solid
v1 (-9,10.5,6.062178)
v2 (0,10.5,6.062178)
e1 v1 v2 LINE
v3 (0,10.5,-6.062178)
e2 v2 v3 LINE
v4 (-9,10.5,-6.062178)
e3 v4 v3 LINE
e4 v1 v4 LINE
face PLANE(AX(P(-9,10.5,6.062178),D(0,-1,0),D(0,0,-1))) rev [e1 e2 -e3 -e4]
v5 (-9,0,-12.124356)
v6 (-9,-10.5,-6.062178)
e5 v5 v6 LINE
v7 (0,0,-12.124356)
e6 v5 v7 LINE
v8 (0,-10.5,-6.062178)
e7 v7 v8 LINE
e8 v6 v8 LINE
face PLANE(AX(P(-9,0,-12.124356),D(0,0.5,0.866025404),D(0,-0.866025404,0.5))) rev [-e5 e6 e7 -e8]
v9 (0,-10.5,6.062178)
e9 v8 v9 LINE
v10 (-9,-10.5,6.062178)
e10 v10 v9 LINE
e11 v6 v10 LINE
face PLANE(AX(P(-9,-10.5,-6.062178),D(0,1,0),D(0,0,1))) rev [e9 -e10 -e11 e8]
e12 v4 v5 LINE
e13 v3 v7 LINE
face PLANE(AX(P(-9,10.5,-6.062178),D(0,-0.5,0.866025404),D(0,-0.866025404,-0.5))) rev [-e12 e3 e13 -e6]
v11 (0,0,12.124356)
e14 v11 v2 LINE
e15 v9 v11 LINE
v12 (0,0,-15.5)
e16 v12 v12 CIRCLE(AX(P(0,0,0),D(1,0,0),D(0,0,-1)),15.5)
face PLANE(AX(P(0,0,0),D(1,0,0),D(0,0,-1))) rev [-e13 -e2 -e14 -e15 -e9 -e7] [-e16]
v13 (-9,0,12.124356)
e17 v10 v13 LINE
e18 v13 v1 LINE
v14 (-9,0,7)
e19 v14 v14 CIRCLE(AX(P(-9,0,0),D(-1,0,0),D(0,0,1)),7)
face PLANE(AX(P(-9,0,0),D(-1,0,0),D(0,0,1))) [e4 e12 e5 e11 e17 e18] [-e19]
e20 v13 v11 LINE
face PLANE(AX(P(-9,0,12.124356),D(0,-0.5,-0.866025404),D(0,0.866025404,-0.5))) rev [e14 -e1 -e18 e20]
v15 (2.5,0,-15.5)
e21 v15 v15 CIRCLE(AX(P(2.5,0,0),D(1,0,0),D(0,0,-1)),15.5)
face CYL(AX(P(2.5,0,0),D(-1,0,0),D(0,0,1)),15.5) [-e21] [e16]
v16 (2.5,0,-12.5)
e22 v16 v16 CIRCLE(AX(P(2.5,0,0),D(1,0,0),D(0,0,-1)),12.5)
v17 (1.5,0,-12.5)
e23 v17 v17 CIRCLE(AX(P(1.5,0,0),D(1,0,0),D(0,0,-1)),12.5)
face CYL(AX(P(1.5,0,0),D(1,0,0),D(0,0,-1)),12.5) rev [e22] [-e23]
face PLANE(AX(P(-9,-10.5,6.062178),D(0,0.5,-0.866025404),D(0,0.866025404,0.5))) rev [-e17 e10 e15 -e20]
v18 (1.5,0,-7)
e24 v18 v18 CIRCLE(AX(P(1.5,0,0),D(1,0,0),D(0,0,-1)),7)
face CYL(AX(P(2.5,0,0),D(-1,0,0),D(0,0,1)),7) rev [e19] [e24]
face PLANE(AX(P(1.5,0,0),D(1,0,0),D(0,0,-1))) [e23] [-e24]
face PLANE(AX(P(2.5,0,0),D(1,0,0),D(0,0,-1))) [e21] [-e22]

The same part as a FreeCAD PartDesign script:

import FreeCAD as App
import Part
import Sketcher

V = App.Vector
Q = App.Units.Quantity

doc = App.newDocument("Part")
body = doc.addObject("PartDesign::Body", "Body")

# Sketch on YZ plane
sketch1 = body.newObject("Sketcher::SketchObject", "Sketch")
sketch1.AttachmentSupport = (doc.getObject("YZ_Plane"), [""])
sketch1.MapMode = "FlatFace"
sketch1.addGeometry(Part.Circle(V(0, 0, 0), V(0, 0, 1), 16), False)
sketch1.addConstraint(Sketcher.Constraint("Coincident", 0, 3, -1, 1))
sketch1.addConstraint(Sketcher.Constraint("Diameter", 0, Q("31 mm")))
pad1 = body.newObject("PartDesign::Pad", "Pad")
pad1.Profile = sketch1
pad1.Length = 2.5

# Sketch on YZ plane
sketch2 = body.newObject("Sketcher::SketchObject", "Sketch001")
sketch2.AttachmentSupport = (doc.getObject("YZ_Plane"), [""])
sketch2.MapMode = "FlatFace"
sketch2.AttachmentOffset = App.Placement(V(0, 0, 2.5), App.Rotation())
sketch2.addGeometry(Part.Circle(V(0, 0, 0), V(0, 0, 1), 12), False)
sketch2.addConstraint(Sketcher.Constraint("Coincident", 0, 3, -1, 1))
sketch2.addConstraint(Sketcher.Constraint("Diameter", 0, Q("25 mm")))
pocket1 = body.newObject("PartDesign::Pocket", "Pocket")
pocket1.Profile = sketch2
pocket1.Length = 1

# Sketch on YZ plane
sketch3 = body.newObject("Sketcher::SketchObject", "Sketch002")
sketch3.AttachmentSupport = (doc.getObject("YZ_Plane"), [""])
sketch3.MapMode = "FlatFace"
sketch3.addGeometry(Part.LineSegment(V(0, 12, 0), V(10, 6, 0)), False)
sketch3.addGeometry(Part.LineSegment(V(10, 6, 0), V(10, -6, 0)), False)
sketch3.addGeometry(Part.LineSegment(V(10, -6, 0), V(0, -12, 0)), False)
sketch3.addGeometry(Part.LineSegment(V(0, -12, 0), V(-10, -6, 0)), False)
sketch3.addGeometry(Part.LineSegment(V(-10, -6, 0), V(-10, 6, 0)), False)
sketch3.addGeometry(Part.LineSegment(V(-10, 6, 0), V(0, 12, 0)), False)
sketch3.addConstraint(Sketcher.Constraint("Coincident", 0, 2, 1, 1))
sketch3.addConstraint(Sketcher.Constraint("Coincident", 1, 2, 2, 1))
sketch3.addConstraint(Sketcher.Constraint("Coincident", 2, 2, 3, 1))
sketch3.addConstraint(Sketcher.Constraint("Coincident", 3, 2, 4, 1))
sketch3.addConstraint(Sketcher.Constraint("Coincident", 4, 2, 5, 1))
sketch3.addConstraint(Sketcher.Constraint("Coincident", 5, 2, 0, 1))
sketch3.addConstraint(Sketcher.Constraint("Vertical", 1))
sketch3.addConstraint(Sketcher.Constraint("Vertical", 4))
sketch3.addConstraint(Sketcher.Constraint("Symmetric", 0, 2, 3, 2, -1, 1))
sketch3.addConstraint(Sketcher.Constraint("Symmetric", 2, 2, 5, 2, -1, 1))
sketch3.addConstraint(Sketcher.Constraint("PointOnObject", 2, 2, -2))
sketch3.addConstraint(Sketcher.Constraint("Parallel", 2, 5))
sketch3.addConstraint(Sketcher.Constraint("Horizontal", 1, 2, 3, 2))
sketch3.addConstraint(Sketcher.Constraint("Angle", 0, Q("-30 deg")))
sketch3.addConstraint(Sketcher.Constraint("DistanceX", 3, 2, 1, 2, Q("21 mm")))
sketch3.addConstraint(Sketcher.Constraint("DistanceY", 1, 2, 1, 1, Q("12.124356 mm")))
pad2 = body.newObject("PartDesign::Pad", "Pad001")
pad2.Profile = sketch3
pad2.Length = 9
pad2.Reversed = True

# Sketch on YZ plane
sketch4 = body.newObject("Sketcher::SketchObject", "Sketch003")
sketch4.AttachmentSupport = (doc.getObject("YZ_Plane"), [""])
sketch4.MapMode = "FlatFace"
sketch4.AttachmentOffset = App.Placement(V(0, 0, -9), App.Rotation())
sketch4.addGeometry(Part.Circle(V(0, 0, 0), V(0, 0, 1), 7), False)
sketch4.addConstraint(Sketcher.Constraint("Coincident", 0, 3, -1, 1))
sketch4.addConstraint(Sketcher.Constraint("Diameter", 0, Q("14 mm")))
pocket2 = body.newObject("PartDesign::Pocket", "Pocket001")
pocket2.Profile = sketch4
pocket2.Type = "ThroughAll"
pocket2.Midplane = True

doc.recompute()
